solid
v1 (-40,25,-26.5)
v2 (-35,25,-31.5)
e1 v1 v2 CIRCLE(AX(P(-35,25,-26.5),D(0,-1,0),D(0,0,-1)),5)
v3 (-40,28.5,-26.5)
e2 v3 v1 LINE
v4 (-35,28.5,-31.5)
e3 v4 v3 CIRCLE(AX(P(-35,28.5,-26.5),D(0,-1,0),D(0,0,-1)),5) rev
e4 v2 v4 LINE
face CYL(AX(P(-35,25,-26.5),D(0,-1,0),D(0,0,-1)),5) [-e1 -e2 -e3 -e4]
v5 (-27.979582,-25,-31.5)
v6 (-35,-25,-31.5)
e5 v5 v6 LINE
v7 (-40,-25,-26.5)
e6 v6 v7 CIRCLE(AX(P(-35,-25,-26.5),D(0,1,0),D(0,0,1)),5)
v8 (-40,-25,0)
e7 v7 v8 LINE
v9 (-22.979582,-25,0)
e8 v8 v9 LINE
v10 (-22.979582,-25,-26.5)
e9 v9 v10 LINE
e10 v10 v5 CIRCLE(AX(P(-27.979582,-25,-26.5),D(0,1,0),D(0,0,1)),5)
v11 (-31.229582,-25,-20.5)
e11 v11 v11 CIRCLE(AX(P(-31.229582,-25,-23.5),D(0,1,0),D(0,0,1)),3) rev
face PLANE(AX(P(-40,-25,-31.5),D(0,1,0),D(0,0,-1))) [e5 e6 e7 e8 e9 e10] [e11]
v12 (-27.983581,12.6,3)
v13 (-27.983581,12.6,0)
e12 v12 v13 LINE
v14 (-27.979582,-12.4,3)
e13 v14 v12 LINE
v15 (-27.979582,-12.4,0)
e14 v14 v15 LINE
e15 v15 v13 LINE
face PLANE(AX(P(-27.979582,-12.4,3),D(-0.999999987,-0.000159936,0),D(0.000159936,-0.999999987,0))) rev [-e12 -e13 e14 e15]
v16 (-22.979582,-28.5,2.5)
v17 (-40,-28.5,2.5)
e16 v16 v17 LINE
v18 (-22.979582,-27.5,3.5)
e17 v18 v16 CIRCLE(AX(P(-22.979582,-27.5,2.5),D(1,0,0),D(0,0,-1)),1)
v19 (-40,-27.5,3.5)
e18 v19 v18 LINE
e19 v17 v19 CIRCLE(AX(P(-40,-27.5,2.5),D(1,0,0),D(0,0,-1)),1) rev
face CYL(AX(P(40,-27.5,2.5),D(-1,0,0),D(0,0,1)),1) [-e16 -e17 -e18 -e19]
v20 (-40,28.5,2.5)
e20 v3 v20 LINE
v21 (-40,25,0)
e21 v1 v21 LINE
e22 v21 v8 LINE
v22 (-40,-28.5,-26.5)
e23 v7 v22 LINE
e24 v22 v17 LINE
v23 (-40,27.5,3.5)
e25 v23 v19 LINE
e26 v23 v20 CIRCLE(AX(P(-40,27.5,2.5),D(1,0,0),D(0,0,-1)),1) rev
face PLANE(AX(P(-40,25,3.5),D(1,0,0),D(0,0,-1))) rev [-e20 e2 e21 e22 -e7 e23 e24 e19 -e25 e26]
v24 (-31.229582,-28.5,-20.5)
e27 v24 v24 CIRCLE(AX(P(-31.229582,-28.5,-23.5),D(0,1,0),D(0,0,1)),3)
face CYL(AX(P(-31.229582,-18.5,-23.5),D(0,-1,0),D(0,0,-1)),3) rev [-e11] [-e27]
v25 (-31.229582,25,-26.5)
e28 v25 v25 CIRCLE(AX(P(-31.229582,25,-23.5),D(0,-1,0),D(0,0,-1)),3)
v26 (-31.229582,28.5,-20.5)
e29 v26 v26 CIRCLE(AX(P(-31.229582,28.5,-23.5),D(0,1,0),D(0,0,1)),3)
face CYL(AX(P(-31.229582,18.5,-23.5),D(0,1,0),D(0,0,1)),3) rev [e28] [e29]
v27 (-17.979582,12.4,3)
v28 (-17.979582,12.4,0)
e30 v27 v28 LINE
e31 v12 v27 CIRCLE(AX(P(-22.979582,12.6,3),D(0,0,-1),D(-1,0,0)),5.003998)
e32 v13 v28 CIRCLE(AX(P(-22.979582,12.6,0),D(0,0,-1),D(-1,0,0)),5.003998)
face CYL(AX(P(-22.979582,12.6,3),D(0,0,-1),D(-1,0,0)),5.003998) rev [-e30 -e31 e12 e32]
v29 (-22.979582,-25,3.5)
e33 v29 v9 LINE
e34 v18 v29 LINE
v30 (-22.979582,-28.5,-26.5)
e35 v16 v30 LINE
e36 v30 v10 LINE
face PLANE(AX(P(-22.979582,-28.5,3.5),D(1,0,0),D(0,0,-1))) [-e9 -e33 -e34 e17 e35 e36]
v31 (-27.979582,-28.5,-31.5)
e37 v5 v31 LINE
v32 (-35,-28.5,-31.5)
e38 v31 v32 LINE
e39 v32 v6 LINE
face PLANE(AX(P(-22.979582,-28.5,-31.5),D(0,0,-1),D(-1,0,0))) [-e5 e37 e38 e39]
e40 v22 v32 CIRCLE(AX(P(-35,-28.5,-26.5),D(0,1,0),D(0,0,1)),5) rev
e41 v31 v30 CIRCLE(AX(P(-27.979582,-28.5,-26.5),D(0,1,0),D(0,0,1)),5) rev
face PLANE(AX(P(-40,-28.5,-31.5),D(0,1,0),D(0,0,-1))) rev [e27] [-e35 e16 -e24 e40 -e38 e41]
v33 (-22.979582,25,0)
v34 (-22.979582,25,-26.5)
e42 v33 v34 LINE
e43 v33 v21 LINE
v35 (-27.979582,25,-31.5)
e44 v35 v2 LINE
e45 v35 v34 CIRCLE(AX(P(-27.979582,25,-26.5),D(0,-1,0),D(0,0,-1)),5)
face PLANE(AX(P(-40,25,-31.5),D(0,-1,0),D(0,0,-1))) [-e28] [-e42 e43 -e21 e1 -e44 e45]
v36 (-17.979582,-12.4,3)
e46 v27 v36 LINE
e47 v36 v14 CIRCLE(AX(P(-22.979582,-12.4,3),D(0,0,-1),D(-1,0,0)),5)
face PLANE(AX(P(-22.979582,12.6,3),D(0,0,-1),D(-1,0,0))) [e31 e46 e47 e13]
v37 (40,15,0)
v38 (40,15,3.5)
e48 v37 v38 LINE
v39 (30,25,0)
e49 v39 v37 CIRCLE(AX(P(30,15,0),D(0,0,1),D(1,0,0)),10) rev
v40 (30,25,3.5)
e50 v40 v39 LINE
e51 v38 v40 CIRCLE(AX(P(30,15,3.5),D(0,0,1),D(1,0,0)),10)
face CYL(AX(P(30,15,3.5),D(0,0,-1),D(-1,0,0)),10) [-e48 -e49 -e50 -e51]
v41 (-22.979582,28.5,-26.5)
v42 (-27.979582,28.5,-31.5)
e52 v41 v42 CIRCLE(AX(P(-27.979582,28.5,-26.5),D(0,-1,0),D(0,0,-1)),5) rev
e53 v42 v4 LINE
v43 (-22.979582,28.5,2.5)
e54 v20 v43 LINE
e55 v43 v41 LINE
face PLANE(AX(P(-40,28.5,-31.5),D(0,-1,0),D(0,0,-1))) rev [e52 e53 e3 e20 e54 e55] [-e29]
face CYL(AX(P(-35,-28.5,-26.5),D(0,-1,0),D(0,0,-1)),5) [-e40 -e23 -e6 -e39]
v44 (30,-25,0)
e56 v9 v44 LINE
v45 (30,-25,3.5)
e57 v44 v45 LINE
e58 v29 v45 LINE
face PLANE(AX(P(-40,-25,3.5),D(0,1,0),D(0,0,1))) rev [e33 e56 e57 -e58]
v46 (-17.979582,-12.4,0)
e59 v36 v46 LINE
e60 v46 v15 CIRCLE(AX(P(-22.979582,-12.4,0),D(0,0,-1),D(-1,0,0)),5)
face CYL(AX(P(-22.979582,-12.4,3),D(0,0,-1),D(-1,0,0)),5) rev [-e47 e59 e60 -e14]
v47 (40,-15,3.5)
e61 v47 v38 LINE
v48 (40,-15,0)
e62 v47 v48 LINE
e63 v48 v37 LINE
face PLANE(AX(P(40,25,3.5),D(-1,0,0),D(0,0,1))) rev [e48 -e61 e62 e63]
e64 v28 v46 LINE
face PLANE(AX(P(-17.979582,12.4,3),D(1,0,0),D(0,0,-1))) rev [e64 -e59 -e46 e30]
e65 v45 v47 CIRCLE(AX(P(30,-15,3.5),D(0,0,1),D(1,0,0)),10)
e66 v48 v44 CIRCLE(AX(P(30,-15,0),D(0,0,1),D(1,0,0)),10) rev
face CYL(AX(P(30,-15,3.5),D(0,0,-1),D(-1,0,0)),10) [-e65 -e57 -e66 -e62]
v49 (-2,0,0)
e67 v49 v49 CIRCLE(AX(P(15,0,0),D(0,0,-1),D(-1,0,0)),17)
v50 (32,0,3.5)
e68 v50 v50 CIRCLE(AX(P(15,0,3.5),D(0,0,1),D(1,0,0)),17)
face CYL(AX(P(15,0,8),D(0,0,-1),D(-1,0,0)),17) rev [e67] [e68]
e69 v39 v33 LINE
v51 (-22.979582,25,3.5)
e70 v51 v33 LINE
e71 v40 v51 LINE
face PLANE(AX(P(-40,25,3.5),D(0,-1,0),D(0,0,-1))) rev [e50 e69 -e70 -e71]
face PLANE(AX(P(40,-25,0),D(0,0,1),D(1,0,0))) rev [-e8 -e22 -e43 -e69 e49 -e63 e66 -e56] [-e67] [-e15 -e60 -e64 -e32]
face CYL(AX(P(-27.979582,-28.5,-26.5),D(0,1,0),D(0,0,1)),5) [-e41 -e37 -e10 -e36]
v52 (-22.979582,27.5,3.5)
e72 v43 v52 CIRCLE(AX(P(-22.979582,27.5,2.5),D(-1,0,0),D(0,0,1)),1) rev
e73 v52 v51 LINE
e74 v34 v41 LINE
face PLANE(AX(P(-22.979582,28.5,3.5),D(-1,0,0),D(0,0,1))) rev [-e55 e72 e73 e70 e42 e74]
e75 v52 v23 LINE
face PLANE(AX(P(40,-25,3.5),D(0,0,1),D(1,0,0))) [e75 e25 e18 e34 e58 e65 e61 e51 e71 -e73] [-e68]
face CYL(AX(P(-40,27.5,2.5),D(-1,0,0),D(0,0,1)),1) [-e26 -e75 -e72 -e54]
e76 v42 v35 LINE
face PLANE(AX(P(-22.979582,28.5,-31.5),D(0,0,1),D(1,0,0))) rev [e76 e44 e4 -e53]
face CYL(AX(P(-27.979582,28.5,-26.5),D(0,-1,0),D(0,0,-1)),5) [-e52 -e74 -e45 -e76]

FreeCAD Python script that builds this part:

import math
import FreeCAD as App
import Part
import Sketcher

V = App.Vector


def edges_at(feature, points):
    """Names of the edges that pass closest to the given points."""
    edges = feature.Shape.Edges
    near = lambda p: min(range(len(edges)), key=lambda i: edges[i].distToShape(Part.Vertex(*p))[0])
    return sorted({f"Edge{near(p) + 1}" for p in points})


def add_polygon(sketch, points):
    """Adds a closed chain of lines whose ends are joined by coincident constraints."""
    first, n = sketch.GeometryCount, len(points)
    for a, b in zip(points, points[1:] + points[:1]):
        sketch.addGeometry(Part.LineSegment(App.Vector(*a, 0), App.Vector(*b, 0)), False)
    for i in range(n):
        sketch.addConstraint(Sketcher.Constraint("Coincident", first + i, 2, first + (i + 1) % n, 1))

doc = App.newDocument("Part")
body = doc.addObject("PartDesign::Body", "Body")

sketch1 = body.newObject("Sketcher::SketchObject", "Sketch")
sketch1.AttachmentSupport = (doc.getObject("XY_Plane"), [""])
sketch1.MapMode = "FlatFace"
add_polygon(sketch1, [(-40, 25), (-40, -25), (40, -25), (40, 25)])
sketch1.addConstraint(Sketcher.Constraint("Vertical", 0))
sketch1.addConstraint(Sketcher.Constraint("Horizontal", 1))
sketch1.addConstraint(Sketcher.Constraint("Vertical", 2))
sketch1.addConstraint(Sketcher.Constraint("Horizontal", 3))
sketch1.addConstraint(Sketcher.Constraint("Symmetric", 0, 2, 2, 2, -1, 1))
sketch1.addConstraint(Sketcher.Constraint("DistanceX", 1, 1, 1, 2, 80.0))
sketch1.addConstraint(Sketcher.Constraint("DistanceY", 0, 2, 0, 1, 50.0))
pad1 = body.newObject("PartDesign::Pad", "Pad")
pad1.Profile = sketch1
pad1.Length = 3.5

sketch2 = body.newObject("Sketcher::SketchObject", "Sketch001")
sketch2.AttachmentSupport = (doc.getObject("XY_Plane"), [""])
sketch2.MapMode = "FlatFace"
sketch2.addGeometry(Part.LineSegment(V(-28, -12, 0), V(-28, 13, 0)), False)
sketch2.addGeometry(Part.ArcOfCircle(Part.Circle(V(-23, 13, 0), V(0, 0, 1), 5), math.radians(-2), math.radians(180)), False)
sketch2.addGeometry(Part.LineSegment(V(-18, 12, 0), V(-18, -12, 0)), False)
sketch2.addGeometry(Part.ArcOfCircle(Part.Circle(V(-23, -12, 0), V(0, 0, 1), 5), math.radians(180), math.radians(360)), False)
sketch2.addConstraint(Sketcher.Constraint("Coincident", 0, 2, 1, 2))
sketch2.addConstraint(Sketcher.Constraint("Coincident", 1, 1, 2, 1))
sketch2.addConstraint(Sketcher.Constraint("Tangent", 2, 2, 3, 2))
sketch2.addConstraint(Sketcher.Constraint("Coincident", 3, 1, 0, 1))
sketch2.addConstraint(Sketcher.Constraint("Vertical", 2))
sketch2.addConstraint(Sketcher.Constraint("Horizontal", 1, 3, 0, 2))
sketch2.addConstraint(Sketcher.Constraint("Horizontal", 2, 2, 3, 1))
sketch2.addConstraint(Sketcher.Constraint("Vertical", 1, 3, 3, 3))
sketch2.addConstraint(Sketcher.Constraint("Radius", 3, 5.0))
sketch2.addConstraint(Sketcher.Constraint("Distance", 0, 25.0))
sketch2.addConstraint(Sketcher.Constraint("DistanceY", 2, 2, 2, 1, 24.8))
sketch2.addConstraint(Sketcher.Constraint("DistanceY", -1, 1, 1, 3, 12.6))
sketch2.addConstraint(Sketcher.Constraint("DistanceX", 0, 2, -1, 1, 27.983581))
pocket1 = body.newObject("PartDesign::Pocket", "Pocket")
pocket1.Profile = sketch2
pocket1.Length = 3
pocket1.Reversed = True

sketch3 = body.newObject("Sketcher::SketchObject", "Sketch002")
sketch3.AttachmentSupport = (doc.getObject("XZ_Plane"), [""])
sketch3.MapMode = "FlatFace"
sketch3.AttachmentOffset = App.Placement(V(0, 0, -25), App.Rotation())
add_polygon(sketch3, [(-40, -32), (-40, 4), (-23, 4), (-23, -32)])
sketch3.addConstraint(Sketcher.Constraint("Vertical", 0))
sketch3.addConstraint(Sketcher.Constraint("Horizontal", 1))
sketch3.addConstraint(Sketcher.Constraint("Vertical", 2))
sketch3.addConstraint(Sketcher.Constraint("Horizontal", 3))
sketch3.addConstraint(Sketcher.Constraint("DistanceY", 0, 1, 0, 2, 35.0))
sketch3.addConstraint(Sketcher.Constraint("DistanceX", 0, 2, -1, 1, 40.0))
sketch3.addConstraint(Sketcher.Constraint("DistanceY", -1, 1, 0, 2, 3.5))
sketch3.addConstraint(Sketcher.Constraint("DistanceX", 1, 1, 1, 2, 17.020418))
pad2 = body.newObject("PartDesign::Pad", "Pad001")
pad2.Profile = sketch3
pad2.Length = 3.5
pad2.Reversed = True
doc.recompute()

mirrored = body.newObject("PartDesign::Mirrored", "Mirrored")
mirrored.Originals = [pad2]
mirrored.MirrorPlane = (doc.getObject("XZ_Plane"), [""])
body.Tip = mirrored
doc.recompute()

fillet = body.newObject("PartDesign::Fillet", "Fillet")
fillet.Base = (mirrored, edges_at(mirrored, [(-31.49, 28.5, 3.5), (-31.49, -28.5, 3.5)]))
fillet.Radius = 1
doc.recompute()

fillet2 = body.newObject("PartDesign::Fillet", "Fillet001")
fillet2.Base = (fillet, edges_at(fillet, [
    (-22.98, -26.75, -31.5),
    (-40, -26.75, -31.5),
    (-40, 26.75, -31.5),
    (-22.98, 26.75, -31.5),
]))
fillet2.Radius = 5

sketch4 = body.newObject("Sketcher::SketchObject", "Sketch003")
sketch4.AttachmentSupport = (doc.getObject("XZ_Plane"), [""])
sketch4.MapMode = "FlatFace"
sketch4.AttachmentOffset = App.Placement(V(0, 0, -28.5), App.Rotation())
sketch4.addGeometry(Part.Circle(V(-31.2, -23.5, 0), V(0, 0, 1), 3), False)
sketch4.addConstraint(Sketcher.Constraint("Diameter", 0, 6.0))
sketch4.addConstraint(Sketcher.Constraint("DistanceY", 0, 3, -1, 1, 23.5))
sketch4.addConstraint(Sketcher.Constraint("DistanceX", 0, 3, -1, 1, 31.229582))
pocket2 = body.newObject("PartDesign::Pocket", "Pocket001")
pocket2.Profile = sketch4
pocket2.Length = 10
pocket2.Reversed = True
doc.recompute()

mirrored2 = body.newObject("PartDesign::Mirrored", "Mirrored001")
mirrored2.Originals = [pocket2]
mirrored2.MirrorPlane = (doc.getObject("XZ_Plane"), [""])
body.Tip = mirrored2

sketch5 = body.newObject("Sketcher::SketchObject", "Sketch004")
sketch5.AttachmentSupport = (doc.getObject("XY_Plane"), [""])
sketch5.MapMode = "FlatFace"
sketch5.addGeometry(Part.Circle(V(15, 0, 0), V(0, 0, 1), 17), False)
sketch5.addConstraint(Sketcher.Constraint("PointOnObject", 0, 3, -1))
sketch5.addConstraint(Sketcher.Constraint("Diameter", 0, 34.0))
sketch5.addConstraint(Sketcher.Constraint("DistanceX", -1, 1, 0, 3, 15.0))
pocket3 = body.newObject("PartDesign::Pocket", "Pocket002")
pocket3.Profile = sketch5
pocket3.Length = 8
pocket3.Reversed = True
doc.recompute()

fillet3 = body.newObject("PartDesign::Fillet", "Fillet002")
fillet3.Base = (pocket3, edges_at(pocket3, [(40, -25, 1.75), (40, 25, 1.75)]))
fillet3.Radius = 10

doc.recompute()
